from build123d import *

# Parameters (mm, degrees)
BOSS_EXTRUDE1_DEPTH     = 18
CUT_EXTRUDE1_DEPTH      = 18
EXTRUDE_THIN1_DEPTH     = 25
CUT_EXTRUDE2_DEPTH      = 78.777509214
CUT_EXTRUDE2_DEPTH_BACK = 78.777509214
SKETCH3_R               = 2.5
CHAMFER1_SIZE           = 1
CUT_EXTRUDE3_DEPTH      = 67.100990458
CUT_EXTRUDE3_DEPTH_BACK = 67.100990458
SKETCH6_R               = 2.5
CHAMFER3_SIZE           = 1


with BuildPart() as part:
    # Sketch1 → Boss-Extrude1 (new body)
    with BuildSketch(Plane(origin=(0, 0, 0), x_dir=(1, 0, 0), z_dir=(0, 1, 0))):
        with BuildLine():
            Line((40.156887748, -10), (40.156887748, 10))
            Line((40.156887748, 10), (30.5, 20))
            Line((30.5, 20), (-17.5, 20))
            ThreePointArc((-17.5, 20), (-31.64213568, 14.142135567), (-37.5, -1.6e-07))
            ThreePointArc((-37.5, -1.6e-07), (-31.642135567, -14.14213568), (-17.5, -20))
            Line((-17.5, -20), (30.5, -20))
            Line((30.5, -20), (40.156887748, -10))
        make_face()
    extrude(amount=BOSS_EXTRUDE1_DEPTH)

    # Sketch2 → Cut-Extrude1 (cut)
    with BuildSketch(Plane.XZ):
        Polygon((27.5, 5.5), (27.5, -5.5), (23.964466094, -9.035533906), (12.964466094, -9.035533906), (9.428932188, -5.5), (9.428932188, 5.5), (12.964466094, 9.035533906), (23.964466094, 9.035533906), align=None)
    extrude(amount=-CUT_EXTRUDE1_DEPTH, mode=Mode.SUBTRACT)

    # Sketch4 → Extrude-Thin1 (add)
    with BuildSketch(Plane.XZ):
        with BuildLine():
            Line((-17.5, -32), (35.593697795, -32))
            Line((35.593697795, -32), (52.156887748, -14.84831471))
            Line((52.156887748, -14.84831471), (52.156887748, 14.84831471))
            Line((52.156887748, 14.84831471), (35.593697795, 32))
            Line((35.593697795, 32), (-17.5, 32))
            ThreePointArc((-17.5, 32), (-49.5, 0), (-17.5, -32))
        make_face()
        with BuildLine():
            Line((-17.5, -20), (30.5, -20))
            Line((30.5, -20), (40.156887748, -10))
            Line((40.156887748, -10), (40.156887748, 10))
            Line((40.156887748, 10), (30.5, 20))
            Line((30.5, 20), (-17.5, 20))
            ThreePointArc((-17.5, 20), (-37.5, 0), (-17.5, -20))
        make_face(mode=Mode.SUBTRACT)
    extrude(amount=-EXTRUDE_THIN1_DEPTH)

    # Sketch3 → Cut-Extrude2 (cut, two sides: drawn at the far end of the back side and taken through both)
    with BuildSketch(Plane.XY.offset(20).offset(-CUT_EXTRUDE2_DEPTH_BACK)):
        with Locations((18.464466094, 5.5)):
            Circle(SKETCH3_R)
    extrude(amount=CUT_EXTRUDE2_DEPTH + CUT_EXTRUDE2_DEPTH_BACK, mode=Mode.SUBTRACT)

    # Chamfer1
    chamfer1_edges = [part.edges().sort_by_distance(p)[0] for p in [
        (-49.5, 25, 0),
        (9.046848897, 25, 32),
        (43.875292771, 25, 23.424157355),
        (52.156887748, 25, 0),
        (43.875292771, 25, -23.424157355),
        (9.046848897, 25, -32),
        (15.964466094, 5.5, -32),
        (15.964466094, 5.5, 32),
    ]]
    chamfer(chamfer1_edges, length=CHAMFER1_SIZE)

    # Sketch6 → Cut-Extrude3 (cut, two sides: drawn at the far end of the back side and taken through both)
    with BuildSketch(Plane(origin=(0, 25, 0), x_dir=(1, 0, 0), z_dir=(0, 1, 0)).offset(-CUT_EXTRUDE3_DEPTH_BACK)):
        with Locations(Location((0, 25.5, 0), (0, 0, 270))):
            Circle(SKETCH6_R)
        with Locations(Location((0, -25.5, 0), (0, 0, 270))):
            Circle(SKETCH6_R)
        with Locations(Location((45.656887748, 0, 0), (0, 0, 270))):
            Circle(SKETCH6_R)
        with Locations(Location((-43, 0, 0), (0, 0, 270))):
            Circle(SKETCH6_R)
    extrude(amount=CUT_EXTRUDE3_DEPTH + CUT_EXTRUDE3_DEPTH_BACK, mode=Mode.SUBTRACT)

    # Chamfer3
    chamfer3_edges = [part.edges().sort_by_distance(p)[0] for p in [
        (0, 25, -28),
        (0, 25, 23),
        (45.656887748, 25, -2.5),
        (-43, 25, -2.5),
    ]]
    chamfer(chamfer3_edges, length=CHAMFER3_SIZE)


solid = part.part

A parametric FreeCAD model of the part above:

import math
import FreeCAD as App
import Part
import Sketcher

V = App.Vector
Q = App.Units.Quantity


def edges_at(feature, points):
    """Names of the edges that pass closest to the given points."""
    edges = feature.Shape.Edges
    near = lambda p: min(range(len(edges)), key=lambda i: edges[i].distToShape(Part.Vertex(*p))[0])
    return sorted({f"Edge{near(p) + 1}" for p in points})


def add_polygon(sketch, points):
    """Adds a closed chain of lines whose ends are joined by coincident constraints."""
    first, n = sketch.GeometryCount, len(points)
    for a, b in zip(points, points[1:] + points[:1]):
        sketch.addGeometry(Part.LineSegment(App.Vector(*a, 0), App.Vector(*b, 0)), False)
    for i in range(n):
        sketch.addConstraint(Sketcher.Constraint("Coincident", first + i, 2, first + (i + 1) % n, 1))

doc = App.newDocument("Part")
body = doc.addObject("PartDesign::Body", "Body")

# Sketch on XZ plane
sketch1 = doc.addObject("Sketcher::SketchObject", "Sketch")
body.addObject(sketch1)
sketch1.AttachmentSupport = (doc.XZ_Plane, [""])
sketch1.MapMode = "FlatFace"
sketch1.addGeometry(Part.LineSegment(V(40, 10, 0), V(40, -10, 0)), False)
sketch1.addGeometry(Part.LineSegment(V(40, -10, 0), V(30, -20, 0)), False)
sketch1.addGeometry(Part.LineSegment(V(30, -20, 0), V(-18, -20, 0)), False)
sketch1.addGeometry(Part.ArcOfCircle(Part.Circle(V(-17, 0, 0), V(0, 0, 1), 20), math.radians(180), math.radians(270)), False)
sketch1.addGeometry(Part.ArcOfCircle(Part.Circle(V(-17, 0, 0), V(0, 0, 1), 20), math.radians(90), math.radians(180)), False)
sketch1.addGeometry(Part.LineSegment(V(-18, 20, 0), V(30, 20, 0)), False)
sketch1.addGeometry(Part.LineSegment(V(30, 20, 0), V(40, 10, 0)), False)
sketch1.addConstraint(Sketcher.Constraint("Coincident", 0, 2, 1, 1))
sketch1.addConstraint(Sketcher.Constraint("Coincident", 1, 2, 2, 1))
sketch1.addConstraint(Sketcher.Constraint("Tangent", 2, 2, 3, 2))
sketch1.addConstraint(Sketcher.Constraint("Tangent", 3, 1, 4, 2))
sketch1.addConstraint(Sketcher.Constraint("Tangent", 4, 1, 5, 1))
sketch1.addConstraint(Sketcher.Constraint("Coincident", 5, 2, 6, 1))
sketch1.addConstraint(Sketcher.Constraint("Coincident", 6, 2, 0, 1))
sketch1.addConstraint(Sketcher.Constraint("Vertical", 0))
sketch1.addConstraint(Sketcher.Constraint("Horizontal", 2))
sketch1.addConstraint(Sketcher.Constraint("Horizontal", 5))
sketch1.addConstraint(Sketcher.Constraint("Equal", 3, 4))
sketch1.addConstraint(Sketcher.Constraint("Symmetric", 1, 2, 5, 2, -1))
sketch1.addConstraint(Sketcher.Constraint("PointOnObject", 3, 1, -1))
sketch1.addConstraint(Sketcher.Constraint("Equal", 1, 6))
sketch1.addConstraint(Sketcher.Constraint("Radius", 3, 20.0))
sketch1.addConstraint(Sketcher.Constraint("DistanceX", 2, 2, 2, 1, 48.0))
sketch1.addConstraint(Sketcher.Constraint("DistanceY", 0, 2, 0, 1, 20.0))
sketch1.addConstraint(Sketcher.Constraint("Angle", 1, Q("-134 deg")))
sketch1.addConstraint(Sketcher.Constraint("DistanceX", 3, 3, -1, 1, 17.5))
pad1 = doc.addObject("PartDesign::Pad", "Pad")
body.addObject(pad1)
pad1.Profile = sketch1
pad1.Length = 18
pad1.Reversed = True

# Sketch on XZ plane
sketch2 = doc.addObject("Sketcher::SketchObject", "Sketch001")
body.addObject(sketch2)
sketch2.AttachmentSupport = (doc.XZ_Plane, [""])
sketch2.MapMode = "FlatFace"
add_polygon(sketch2, [(28, -6), (28, 6), (24, 9), (13, 9), (9, 6), (9, -6), (13, -9), (24, -9)])  # lines 0-7
sketch2.addConstraint(Sketcher.Constraint("Vertical", 0))
sketch2.addConstraint(Sketcher.Constraint("Horizontal", 2))
sketch2.addConstraint(Sketcher.Constraint("Vertical", 4))
sketch2.addConstraint(Sketcher.Constraint("Horizontal", 6))
sketch2.addConstraint(Sketcher.Constraint("Symmetric", 2, 2, 5, 2, -1))
sketch2.addConstraint(Sketcher.Constraint("Perpendicular", 1, 3))
sketch2.addConstraint(Sketcher.Constraint("Perpendicular", 3, 5))
sketch2.addConstraint(Sketcher.Constraint("Perpendicular", 5, 7))
sketch2.addConstraint(Sketcher.Constraint("Horizontal", 0, 2, 3, 2))
sketch2.addConstraint(Sketcher.Constraint("Horizontal", 4, 2, 7, 2))
sketch2.addConstraint(Sketcher.Constraint("Vertical", 1, 2, 6, 2))
sketch2.addConstraint(Sketcher.Constraint("Equal", 6, 0))
sketch2.addConstraint(Sketcher.Constraint("DistanceX", 2, 2, 2, 1, 11.0))
sketch2.addConstraint(Sketcher.Constraint("Distance", 1, 5.0))
sketch2.addConstraint(Sketcher.Constraint("DistanceX", -1, 1, 0, 2, 27.5))
pocket1 = doc.addObject("PartDesign::Pocket", "Pocket")
body.addObject(pocket1)
pocket1.Profile = sketch2
pocket1.Length = 18

# Sketch on XZ plane
sketch3 = doc.addObject("Sketcher::SketchObject", "Sketch002")
body.addObject(sketch3)
sketch3.AttachmentSupport = (doc.XZ_Plane, [""])
sketch3.MapMode = "FlatFace"
sketch3.addGeometry(Part.LineSegment(V(-18, -32, 0), V(36, -32, 0)), False)
sketch3.addGeometry(Part.LineSegment(V(36, -32, 0), V(52, -15, 0)), False)
sketch3.addGeometry(Part.LineSegment(V(52, -15, 0), V(52, 15, 0)), False)
sketch3.addGeometry(Part.LineSegment(V(52, 15, 0), V(36, 32, 0)), False)
sketch3.addGeometry(Part.LineSegment(V(36, 32, 0), V(-18, 32, 0)), False)
sketch3.addGeometry(Part.ArcOfCircle(Part.Circle(V(-18, 0, 0), V(0, 0, 1), 32), math.radians(90), math.radians(270)), False)
sketch3.addGeometry(Part.LineSegment(V(30, -20, 0), V(-18, -20, 0)), False)
sketch3.addGeometry(Part.ArcOfCircle(Part.Circle(V(-18, 0, 0), V(0, 0, 1), 20), math.radians(90), math.radians(270)), False)
sketch3.addGeometry(Part.LineSegment(V(-18, 20, 0), V(30, 20, 0)), False)
sketch3.addGeometry(Part.LineSegment(V(30, 20, 0), V(40, 10, 0)), False)
sketch3.addGeometry(Part.LineSegment(V(40, 10, 0), V(40, -10, 0)), False)
sketch3.addGeometry(Part.LineSegment(V(40, -10, 0), V(30, -20, 0)), False)
sketch3.addConstraint(Sketcher.Constraint("Coincident", 0, 2, 1, 1))
sketch3.addConstraint(Sketcher.Constraint("Coincident", 1, 2, 2, 1))
sketch3.addConstraint(Sketcher.Constraint("Coincident", 2, 2, 3, 1))
sketch3.addConstraint(Sketcher.Constraint("Coincident", 3, 2, 4, 1))
sketch3.addConstraint(Sketcher.Constraint("Tangent", 4, 2, 5, 1))
sketch3.addConstraint(Sketcher.Constraint("Tangent", 5, 2, 0, 1))
sketch3.addConstraint(Sketcher.Constraint("Tangent", 6, 2, 7, 2))
sketch3.addConstraint(Sketcher.Constraint("Tangent", 7, 1, 8, 1))
sketch3.addConstraint(Sketcher.Constraint("Coincident", 8, 2, 9, 1))
sketch3.addConstraint(Sketcher.Constraint("Coincident", 9, 2, 10, 1))
sketch3.addConstraint(Sketcher.Constraint("Coincident", 10, 2, 11, 1))
sketch3.addConstraint(Sketcher.Constraint("Coincident", 11, 2, 6, 1))
sketch3.addConstraint(Sketcher.Constraint("Horizontal", 0))
sketch3.addConstraint(Sketcher.Constraint("Vertical", 2))
sketch3.addConstraint(Sketcher.Constraint("Horizontal", 4))
sketch3.addConstraint(Sketcher.Constraint("Horizontal", 6))
sketch3.addConstraint(Sketcher.Constraint("Horizontal", 8))
sketch3.addConstraint(Sketcher.Constraint("Vertical", 10))
sketch3.addConstraint(Sketcher.Constraint("Coincident", 7, 3, 5, 3))
sketch3.addConstraint(Sketcher.Constraint("Symmetric", 0, 2, 3, 2, -1))
sketch3.addConstraint(Sketcher.Constraint("Parallel", 3, 9))
sketch3.addConstraint(Sketcher.Constraint("Parallel", 1, 11))
sketch3.addConstraint(Sketcher.Constraint("Vertical", 8, 2, 11, 2))
sketch3.addConstraint(Sketcher.Constraint("Equal", 1, 3))
sketch3.addConstraint(Sketcher.Constraint("Radius", 5, 32.0))
sketch3.addConstraint(Sketcher.Constraint("Radius", 7, 20.0))
sketch3.addConstraint(Sketcher.Constraint("DistanceX", 6, 2, 6, 1, 48.0))
sketch3.addConstraint(Sketcher.Constraint("DistanceY", 10, 2, 10, 1, 20.0))
sketch3.addConstraint(Sketcher.Constraint("Angle", 1, Q("46 deg")))
sketch3.addConstraint(Sketcher.Constraint("DistanceX", 9, 2, 2, 2, 12.0))
sketch3.addConstraint(Sketcher.Constraint("DistanceX", 5, 3, -1, 1, 17.5))
sketch3.addConstraint(Sketcher.Constraint("DistanceY", 2, 1, 2, 2, 29.696629))
pad2 = doc.addObject("PartDesign::Pad", "Pad001")
body.addObject(pad2)
pad2.Profile = sketch3
pad2.Length = 25
pad2.Reversed = True

# Sketch on XY plane
sketch4 = doc.addObject("Sketcher::SketchObject", "Sketch003")
body.addObject(sketch4)
sketch4.AttachmentSupport = (doc.XY_Plane, [""])
sketch4.MapMode = "FlatFace"
sketch4.AttachmentOffset = App.Placement(V(0, 0, 20), App.Rotation())
sketch4.addGeometry(Part.Circle(V(18.5, 5.5, 0), V(0, 0, 1), 2.5), False)
sketch4.addConstraint(Sketcher.Constraint("Diameter", 0, 5.0))
sketch4.addConstraint(Sketcher.Constraint("DistanceY", -1, 1, 0, 3, 5.5))
sketch4.addConstraint(Sketcher.Constraint("DistanceX", -1, 1, 0, 3, 18.464466))
pocket2 = doc.addObject("PartDesign::Pocket", "Pocket001")
body.addObject(pocket2)
pocket2.Profile = sketch4
pocket2.Type = "ThroughAll"
pocket2.Midplane = True
doc.recompute()

chamfer = doc.addObject("PartDesign::Chamfer", "Chamfer")
body.addObject(chamfer)
chamfer.Base = (pocket2, edges_at(pocket2, [
    (-49.5, 25, 0),
    (9.047, 25, 32),
    (43.875, 25, 23.424),
    (52.157, 25, 0),
    (43.875, 25, -23.424),
    (9.047, 25, -32),
    (15.964, 5.5, -32),
    (15.964, 5.5, 32),
]))
chamfer.Size = 1

# Sketch on XZ plane
sketch5 = doc.addObject("Sketcher::SketchObject", "Sketch004")
body.addObject(sketch5)
sketch5.AttachmentSupport = (doc.XZ_Plane, [""])
sketch5.MapMode = "FlatFace"
sketch5.AttachmentOffset = App.Placement(V(0, 0, -25), App.Rotation())
sketch5.addGeometry(Part.Circle(V(0, -25.5, 0), V(0, 0, 1), 2.5), False)
sketch5.addGeometry(Part.Circle(V(0, 25.5, 0), V(0, 0, 1), 2.5), False)
sketch5.addGeometry(Part.Circle(V(45.7, 0, 0), V(0, 0, 1), 2.5), False)
sketch5.addGeometry(Part.Circle(V(-43, 0, 0), V(0, 0, 1), 2.5), False)
sketch5.addConstraint(Sketcher.Constraint("Equal", 0, 1))
sketch5.addConstraint(Sketcher.Constraint("Equal", 1, 2))
sketch5.addConstraint(Sketcher.Constraint("Equal", 2, 3))
sketch5.addConstraint(Sketcher.Constraint("Symmetric", 0, 3, 1, 3, -1, 1))
sketch5.addConstraint(Sketcher.Constraint("PointOnObject", 0, 3, -2))
sketch5.addConstraint(Sketcher.Constraint("PointOnObject", 2, 3, -1))
sketch5.addConstraint(Sketcher.Constraint("PointOnObject", 3, 3, -1))
sketch5.addConstraint(Sketcher.Constraint("Diameter", 0, 5.0))
sketch5.addConstraint(Sketcher.Constraint("DistanceX", 3, 3, -1, 1, 43.0))
sketch5.addConstraint(Sketcher.Constraint("DistanceY", 0, 3, 1, 3, 51.0))
sketch5.addConstraint(Sketcher.Constraint("DistanceX", -1, 1, 2, 3, 45.656888))
pocket3 = doc.addObject("PartDesign::Pocket", "Pocket002")
body.addObject(pocket3)
pocket3.Profile = sketch5
pocket3.Type = "ThroughAll"
pocket3.Midplane = True
doc.recompute()

chamfer2 = doc.addObject("PartDesign::Chamfer", "Chamfer001")
body.addObject(chamfer2)
chamfer2.Base = (pocket3, edges_at(pocket3, [
    (0, 25, -28),
    (0, 25, 23),
    (45.657, 25, -2.5),
    (-43, 25, -2.5),
]))
chamfer2.Size = 1

doc.recompute()
